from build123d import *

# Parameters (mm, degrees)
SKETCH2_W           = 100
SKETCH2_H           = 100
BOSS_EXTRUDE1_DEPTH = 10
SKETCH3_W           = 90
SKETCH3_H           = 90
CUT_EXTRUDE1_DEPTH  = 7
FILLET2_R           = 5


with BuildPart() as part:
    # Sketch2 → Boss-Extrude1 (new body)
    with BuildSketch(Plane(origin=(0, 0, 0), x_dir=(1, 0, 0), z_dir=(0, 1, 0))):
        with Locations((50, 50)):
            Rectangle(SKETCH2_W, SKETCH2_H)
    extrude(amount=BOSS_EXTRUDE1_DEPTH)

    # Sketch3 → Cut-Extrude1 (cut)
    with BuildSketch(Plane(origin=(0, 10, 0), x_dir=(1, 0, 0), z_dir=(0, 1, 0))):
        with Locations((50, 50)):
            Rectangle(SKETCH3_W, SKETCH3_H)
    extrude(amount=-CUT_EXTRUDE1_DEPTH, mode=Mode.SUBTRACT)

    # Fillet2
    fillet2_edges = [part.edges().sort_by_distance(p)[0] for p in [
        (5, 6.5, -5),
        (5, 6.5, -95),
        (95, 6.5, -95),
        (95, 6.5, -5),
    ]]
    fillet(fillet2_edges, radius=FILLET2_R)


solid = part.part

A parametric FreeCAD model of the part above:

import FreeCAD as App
import Part
import Sketcher
Q = App.Units.Quantity


def edges_at(feature, points):
    """Names of the edges that pass closest to the given points."""
    edges = feature.Shape.Edges
    near = lambda p: min(range(len(edges)), key=lambda i: edges[i].distToShape(Part.Vertex(*p))[0])
    return sorted({f"Edge{near(p) + 1}" for p in points})

doc = App.newDocument("Part")
params = doc.addObject("Spreadsheet::Sheet", "Params")
for row, (alias, value) in enumerate([
    ("sketch1_width", "100 mm"),
    ("pad1_length", "10 mm"),
    ("sketch2_width", "90 mm"),
    ("pocket1_length", "7 mm"),
    ("fillet_radius", "5 mm"),
], start=1):
    params.set(f"A{row}", alias)
    params.set(f"B{row}", "=" + value)
    params.setAlias(f"B{row}", alias)

body = doc.addObject("PartDesign::Body", "Body")

# Sketch on XZ plane
sketch1 = body.newObject("Sketcher::SketchObject", "Sketch")
sketch1.AttachmentSupport = (doc.getObject("XZ_Plane"), [""])
sketch1.MapMode = "FlatFace"
sketch1.addGeometry([
    Part.LineSegment(App.Vector(0, -100, 0), App.Vector(0, 0, 0)),
    Part.LineSegment(App.Vector(0, 0, 0), App.Vector(100, 0, 0)),
    Part.LineSegment(App.Vector(100, 0, 0), App.Vector(100, -100, 0)),
    Part.LineSegment(App.Vector(100, -100, 0), App.Vector(0, -100, 0)),
], False)
sketch1.addConstraint([
    Sketcher.Constraint("Coincident", 0, 2, 1, 1),
    Sketcher.Constraint("Coincident", 1, 2, 2, 1),
    Sketcher.Constraint("Coincident", 2, 2, 3, 1),
    Sketcher.Constraint("Coincident", 3, 2, 0, 1),
    Sketcher.Constraint("Vertical", 0),
    Sketcher.Constraint("Horizontal", 1),
    Sketcher.Constraint("Vertical", 2),
    Sketcher.Constraint("Horizontal", 3),
    Sketcher.Constraint("Coincident", 0, 2, -1, 1),
    Sketcher.Constraint("Equal", 3, 0),
    Sketcher.Constraint("DistanceX", 1, 1, 1, 2, Q("100 mm")),
])
sketch1.setExpression("Constraints[10]", "Params.sketch1_width")
pad1 = body.newObject("PartDesign::Pad", "Pad")
pad1.Profile = sketch1
pad1.setExpression("Length", "Params.pad1_length")
pad1.Reversed = True

# Sketch on XZ plane
sketch2 = body.newObject("Sketcher::SketchObject", "Sketch001")
sketch2.AttachmentSupport = (doc.getObject("XZ_Plane"), [""])
sketch2.MapMode = "FlatFace"
sketch2.AttachmentOffset = App.Placement(App.Vector(0, 0, -10), App.Rotation())
sketch2.addGeometry([
    Part.LineSegment(App.Vector(5, -95, 0), App.Vector(5, -5, 0)),
    Part.LineSegment(App.Vector(5, -5, 0), App.Vector(95, -5, 0)),
    Part.LineSegment(App.Vector(95, -5, 0), App.Vector(95, -95, 0)),
    Part.LineSegment(App.Vector(95, -95, 0), App.Vector(5, -95, 0)),
], False)
sketch2.addConstraint([
    Sketcher.Constraint("Coincident", 0, 2, 1, 1),
    Sketcher.Constraint("Coincident", 1, 2, 2, 1),
    Sketcher.Constraint("Coincident", 2, 2, 3, 1),
    Sketcher.Constraint("Coincident", 3, 2, 0, 1),
    Sketcher.Constraint("Vertical", 0),
    Sketcher.Constraint("Horizontal", 1),
    Sketcher.Constraint("Vertical", 2),
    Sketcher.Constraint("Horizontal", 3),
    Sketcher.Constraint("Equal", 3, 0),
    Sketcher.Constraint("DistanceX", 1, 1, 1, 2, Q("90 mm")),
    Sketcher.Constraint("DistanceX", -1, 1, 0, 2, Q("5 mm")),
    Sketcher.Constraint("DistanceY", 0, 2, -1, 1, Q("5 mm")),
])
sketch2.setExpression("Constraints[9]", "Params.sketch2_width")
pocket1 = body.newObject("PartDesign::Pocket", "Pocket")
pocket1.Profile = sketch2
pocket1.setExpression("Length", "Params.pocket1_length")
pocket1.Reversed = True
doc.recompute()

fillet = body.newObject("PartDesign::Fillet", "Fillet")
fillet.Base = (pocket1, edges_at(pocket1, [
    (5, 6.5, -5),
    (5, 6.5, -95),
    (95, 6.5, -95),
    (95, 6.5, -5),
]))
fillet.setExpression("Radius", "Params.fillet_radius")

doc.recompute()
